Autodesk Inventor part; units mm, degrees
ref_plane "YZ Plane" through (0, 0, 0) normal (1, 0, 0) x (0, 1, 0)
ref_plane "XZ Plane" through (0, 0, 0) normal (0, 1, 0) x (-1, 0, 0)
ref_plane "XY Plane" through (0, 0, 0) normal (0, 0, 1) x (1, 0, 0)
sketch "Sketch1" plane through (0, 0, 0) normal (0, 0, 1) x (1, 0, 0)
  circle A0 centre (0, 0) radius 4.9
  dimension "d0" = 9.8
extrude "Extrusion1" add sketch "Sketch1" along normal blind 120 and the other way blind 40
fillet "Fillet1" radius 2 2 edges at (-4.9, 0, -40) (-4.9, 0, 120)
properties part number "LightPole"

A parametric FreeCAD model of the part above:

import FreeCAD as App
import Part
import Sketcher
from FreeCAD import Vector
Q = App.Units.Quantity


def edges_at(feature, points):
    """Names of the edges that pass closest to the given points."""
    edges = feature.Shape.Edges
    near = lambda p: min(range(len(edges)), key=lambda i: edges[i].distToShape(Part.Vertex(*p))[0])
    return sorted({f"Edge{near(p) + 1}" for p in points})

doc = App.newDocument("Part")
params = doc.addObject("Spreadsheet::Sheet", "Params")
for row, (alias, value) in enumerate([
    ("sketch1_diameter", "9.8 mm"),
    ("pad1_length", "120 mm"),
    ("pad1_length2", "40 mm"),
    ("fillet_radius", "2 mm"),
], start=1):
    params.set(f"A{row}", alias)
    params.set(f"B{row}", "=" + value)
    params.setAlias(f"B{row}", alias)

body = doc.addObject("PartDesign::Body", "Body")

# Sketch on XY plane
sketch1 = doc.addObject("Sketcher::SketchObject", "Sketch")
body.addObject(sketch1)
sketch1.AttachmentSupport = (doc.XY_Plane, [""])
sketch1.MapMode = "FlatFace"
sketch1.addGeometry(Part.Circle(Vector(0, 0, 0), Vector(0, 0, 1), 4.9), False)
sketch1.addConstraint(Sketcher.Constraint("Coincident", 0, 3, -1, 1))
sketch1.addConstraint(Sketcher.Constraint("Diameter", 0, Q("9.8 mm")))
sketch1.setExpression("Constraints[1]", "Params.sketch1_diameter")
pad1 = doc.addObject("PartDesign::Pad", "Pad")
body.addObject(pad1)
pad1.Profile = sketch1
pad1.Type = "TwoLengths"
pad1.setExpression("Length", "Params.pad1_length")
pad1.setExpression("Length2", "Params.pad1_length2")
doc.recompute()

fillet = doc.addObject("PartDesign::Fillet", "Fillet")
body.addObject(fillet)
fillet.Base = (pad1, edges_at(pad1, [(-4.9, 0, -40), (-4.9, 0, 120)]))
fillet.setExpression("Radius", "Params.fillet_radius")

doc.recompute()
